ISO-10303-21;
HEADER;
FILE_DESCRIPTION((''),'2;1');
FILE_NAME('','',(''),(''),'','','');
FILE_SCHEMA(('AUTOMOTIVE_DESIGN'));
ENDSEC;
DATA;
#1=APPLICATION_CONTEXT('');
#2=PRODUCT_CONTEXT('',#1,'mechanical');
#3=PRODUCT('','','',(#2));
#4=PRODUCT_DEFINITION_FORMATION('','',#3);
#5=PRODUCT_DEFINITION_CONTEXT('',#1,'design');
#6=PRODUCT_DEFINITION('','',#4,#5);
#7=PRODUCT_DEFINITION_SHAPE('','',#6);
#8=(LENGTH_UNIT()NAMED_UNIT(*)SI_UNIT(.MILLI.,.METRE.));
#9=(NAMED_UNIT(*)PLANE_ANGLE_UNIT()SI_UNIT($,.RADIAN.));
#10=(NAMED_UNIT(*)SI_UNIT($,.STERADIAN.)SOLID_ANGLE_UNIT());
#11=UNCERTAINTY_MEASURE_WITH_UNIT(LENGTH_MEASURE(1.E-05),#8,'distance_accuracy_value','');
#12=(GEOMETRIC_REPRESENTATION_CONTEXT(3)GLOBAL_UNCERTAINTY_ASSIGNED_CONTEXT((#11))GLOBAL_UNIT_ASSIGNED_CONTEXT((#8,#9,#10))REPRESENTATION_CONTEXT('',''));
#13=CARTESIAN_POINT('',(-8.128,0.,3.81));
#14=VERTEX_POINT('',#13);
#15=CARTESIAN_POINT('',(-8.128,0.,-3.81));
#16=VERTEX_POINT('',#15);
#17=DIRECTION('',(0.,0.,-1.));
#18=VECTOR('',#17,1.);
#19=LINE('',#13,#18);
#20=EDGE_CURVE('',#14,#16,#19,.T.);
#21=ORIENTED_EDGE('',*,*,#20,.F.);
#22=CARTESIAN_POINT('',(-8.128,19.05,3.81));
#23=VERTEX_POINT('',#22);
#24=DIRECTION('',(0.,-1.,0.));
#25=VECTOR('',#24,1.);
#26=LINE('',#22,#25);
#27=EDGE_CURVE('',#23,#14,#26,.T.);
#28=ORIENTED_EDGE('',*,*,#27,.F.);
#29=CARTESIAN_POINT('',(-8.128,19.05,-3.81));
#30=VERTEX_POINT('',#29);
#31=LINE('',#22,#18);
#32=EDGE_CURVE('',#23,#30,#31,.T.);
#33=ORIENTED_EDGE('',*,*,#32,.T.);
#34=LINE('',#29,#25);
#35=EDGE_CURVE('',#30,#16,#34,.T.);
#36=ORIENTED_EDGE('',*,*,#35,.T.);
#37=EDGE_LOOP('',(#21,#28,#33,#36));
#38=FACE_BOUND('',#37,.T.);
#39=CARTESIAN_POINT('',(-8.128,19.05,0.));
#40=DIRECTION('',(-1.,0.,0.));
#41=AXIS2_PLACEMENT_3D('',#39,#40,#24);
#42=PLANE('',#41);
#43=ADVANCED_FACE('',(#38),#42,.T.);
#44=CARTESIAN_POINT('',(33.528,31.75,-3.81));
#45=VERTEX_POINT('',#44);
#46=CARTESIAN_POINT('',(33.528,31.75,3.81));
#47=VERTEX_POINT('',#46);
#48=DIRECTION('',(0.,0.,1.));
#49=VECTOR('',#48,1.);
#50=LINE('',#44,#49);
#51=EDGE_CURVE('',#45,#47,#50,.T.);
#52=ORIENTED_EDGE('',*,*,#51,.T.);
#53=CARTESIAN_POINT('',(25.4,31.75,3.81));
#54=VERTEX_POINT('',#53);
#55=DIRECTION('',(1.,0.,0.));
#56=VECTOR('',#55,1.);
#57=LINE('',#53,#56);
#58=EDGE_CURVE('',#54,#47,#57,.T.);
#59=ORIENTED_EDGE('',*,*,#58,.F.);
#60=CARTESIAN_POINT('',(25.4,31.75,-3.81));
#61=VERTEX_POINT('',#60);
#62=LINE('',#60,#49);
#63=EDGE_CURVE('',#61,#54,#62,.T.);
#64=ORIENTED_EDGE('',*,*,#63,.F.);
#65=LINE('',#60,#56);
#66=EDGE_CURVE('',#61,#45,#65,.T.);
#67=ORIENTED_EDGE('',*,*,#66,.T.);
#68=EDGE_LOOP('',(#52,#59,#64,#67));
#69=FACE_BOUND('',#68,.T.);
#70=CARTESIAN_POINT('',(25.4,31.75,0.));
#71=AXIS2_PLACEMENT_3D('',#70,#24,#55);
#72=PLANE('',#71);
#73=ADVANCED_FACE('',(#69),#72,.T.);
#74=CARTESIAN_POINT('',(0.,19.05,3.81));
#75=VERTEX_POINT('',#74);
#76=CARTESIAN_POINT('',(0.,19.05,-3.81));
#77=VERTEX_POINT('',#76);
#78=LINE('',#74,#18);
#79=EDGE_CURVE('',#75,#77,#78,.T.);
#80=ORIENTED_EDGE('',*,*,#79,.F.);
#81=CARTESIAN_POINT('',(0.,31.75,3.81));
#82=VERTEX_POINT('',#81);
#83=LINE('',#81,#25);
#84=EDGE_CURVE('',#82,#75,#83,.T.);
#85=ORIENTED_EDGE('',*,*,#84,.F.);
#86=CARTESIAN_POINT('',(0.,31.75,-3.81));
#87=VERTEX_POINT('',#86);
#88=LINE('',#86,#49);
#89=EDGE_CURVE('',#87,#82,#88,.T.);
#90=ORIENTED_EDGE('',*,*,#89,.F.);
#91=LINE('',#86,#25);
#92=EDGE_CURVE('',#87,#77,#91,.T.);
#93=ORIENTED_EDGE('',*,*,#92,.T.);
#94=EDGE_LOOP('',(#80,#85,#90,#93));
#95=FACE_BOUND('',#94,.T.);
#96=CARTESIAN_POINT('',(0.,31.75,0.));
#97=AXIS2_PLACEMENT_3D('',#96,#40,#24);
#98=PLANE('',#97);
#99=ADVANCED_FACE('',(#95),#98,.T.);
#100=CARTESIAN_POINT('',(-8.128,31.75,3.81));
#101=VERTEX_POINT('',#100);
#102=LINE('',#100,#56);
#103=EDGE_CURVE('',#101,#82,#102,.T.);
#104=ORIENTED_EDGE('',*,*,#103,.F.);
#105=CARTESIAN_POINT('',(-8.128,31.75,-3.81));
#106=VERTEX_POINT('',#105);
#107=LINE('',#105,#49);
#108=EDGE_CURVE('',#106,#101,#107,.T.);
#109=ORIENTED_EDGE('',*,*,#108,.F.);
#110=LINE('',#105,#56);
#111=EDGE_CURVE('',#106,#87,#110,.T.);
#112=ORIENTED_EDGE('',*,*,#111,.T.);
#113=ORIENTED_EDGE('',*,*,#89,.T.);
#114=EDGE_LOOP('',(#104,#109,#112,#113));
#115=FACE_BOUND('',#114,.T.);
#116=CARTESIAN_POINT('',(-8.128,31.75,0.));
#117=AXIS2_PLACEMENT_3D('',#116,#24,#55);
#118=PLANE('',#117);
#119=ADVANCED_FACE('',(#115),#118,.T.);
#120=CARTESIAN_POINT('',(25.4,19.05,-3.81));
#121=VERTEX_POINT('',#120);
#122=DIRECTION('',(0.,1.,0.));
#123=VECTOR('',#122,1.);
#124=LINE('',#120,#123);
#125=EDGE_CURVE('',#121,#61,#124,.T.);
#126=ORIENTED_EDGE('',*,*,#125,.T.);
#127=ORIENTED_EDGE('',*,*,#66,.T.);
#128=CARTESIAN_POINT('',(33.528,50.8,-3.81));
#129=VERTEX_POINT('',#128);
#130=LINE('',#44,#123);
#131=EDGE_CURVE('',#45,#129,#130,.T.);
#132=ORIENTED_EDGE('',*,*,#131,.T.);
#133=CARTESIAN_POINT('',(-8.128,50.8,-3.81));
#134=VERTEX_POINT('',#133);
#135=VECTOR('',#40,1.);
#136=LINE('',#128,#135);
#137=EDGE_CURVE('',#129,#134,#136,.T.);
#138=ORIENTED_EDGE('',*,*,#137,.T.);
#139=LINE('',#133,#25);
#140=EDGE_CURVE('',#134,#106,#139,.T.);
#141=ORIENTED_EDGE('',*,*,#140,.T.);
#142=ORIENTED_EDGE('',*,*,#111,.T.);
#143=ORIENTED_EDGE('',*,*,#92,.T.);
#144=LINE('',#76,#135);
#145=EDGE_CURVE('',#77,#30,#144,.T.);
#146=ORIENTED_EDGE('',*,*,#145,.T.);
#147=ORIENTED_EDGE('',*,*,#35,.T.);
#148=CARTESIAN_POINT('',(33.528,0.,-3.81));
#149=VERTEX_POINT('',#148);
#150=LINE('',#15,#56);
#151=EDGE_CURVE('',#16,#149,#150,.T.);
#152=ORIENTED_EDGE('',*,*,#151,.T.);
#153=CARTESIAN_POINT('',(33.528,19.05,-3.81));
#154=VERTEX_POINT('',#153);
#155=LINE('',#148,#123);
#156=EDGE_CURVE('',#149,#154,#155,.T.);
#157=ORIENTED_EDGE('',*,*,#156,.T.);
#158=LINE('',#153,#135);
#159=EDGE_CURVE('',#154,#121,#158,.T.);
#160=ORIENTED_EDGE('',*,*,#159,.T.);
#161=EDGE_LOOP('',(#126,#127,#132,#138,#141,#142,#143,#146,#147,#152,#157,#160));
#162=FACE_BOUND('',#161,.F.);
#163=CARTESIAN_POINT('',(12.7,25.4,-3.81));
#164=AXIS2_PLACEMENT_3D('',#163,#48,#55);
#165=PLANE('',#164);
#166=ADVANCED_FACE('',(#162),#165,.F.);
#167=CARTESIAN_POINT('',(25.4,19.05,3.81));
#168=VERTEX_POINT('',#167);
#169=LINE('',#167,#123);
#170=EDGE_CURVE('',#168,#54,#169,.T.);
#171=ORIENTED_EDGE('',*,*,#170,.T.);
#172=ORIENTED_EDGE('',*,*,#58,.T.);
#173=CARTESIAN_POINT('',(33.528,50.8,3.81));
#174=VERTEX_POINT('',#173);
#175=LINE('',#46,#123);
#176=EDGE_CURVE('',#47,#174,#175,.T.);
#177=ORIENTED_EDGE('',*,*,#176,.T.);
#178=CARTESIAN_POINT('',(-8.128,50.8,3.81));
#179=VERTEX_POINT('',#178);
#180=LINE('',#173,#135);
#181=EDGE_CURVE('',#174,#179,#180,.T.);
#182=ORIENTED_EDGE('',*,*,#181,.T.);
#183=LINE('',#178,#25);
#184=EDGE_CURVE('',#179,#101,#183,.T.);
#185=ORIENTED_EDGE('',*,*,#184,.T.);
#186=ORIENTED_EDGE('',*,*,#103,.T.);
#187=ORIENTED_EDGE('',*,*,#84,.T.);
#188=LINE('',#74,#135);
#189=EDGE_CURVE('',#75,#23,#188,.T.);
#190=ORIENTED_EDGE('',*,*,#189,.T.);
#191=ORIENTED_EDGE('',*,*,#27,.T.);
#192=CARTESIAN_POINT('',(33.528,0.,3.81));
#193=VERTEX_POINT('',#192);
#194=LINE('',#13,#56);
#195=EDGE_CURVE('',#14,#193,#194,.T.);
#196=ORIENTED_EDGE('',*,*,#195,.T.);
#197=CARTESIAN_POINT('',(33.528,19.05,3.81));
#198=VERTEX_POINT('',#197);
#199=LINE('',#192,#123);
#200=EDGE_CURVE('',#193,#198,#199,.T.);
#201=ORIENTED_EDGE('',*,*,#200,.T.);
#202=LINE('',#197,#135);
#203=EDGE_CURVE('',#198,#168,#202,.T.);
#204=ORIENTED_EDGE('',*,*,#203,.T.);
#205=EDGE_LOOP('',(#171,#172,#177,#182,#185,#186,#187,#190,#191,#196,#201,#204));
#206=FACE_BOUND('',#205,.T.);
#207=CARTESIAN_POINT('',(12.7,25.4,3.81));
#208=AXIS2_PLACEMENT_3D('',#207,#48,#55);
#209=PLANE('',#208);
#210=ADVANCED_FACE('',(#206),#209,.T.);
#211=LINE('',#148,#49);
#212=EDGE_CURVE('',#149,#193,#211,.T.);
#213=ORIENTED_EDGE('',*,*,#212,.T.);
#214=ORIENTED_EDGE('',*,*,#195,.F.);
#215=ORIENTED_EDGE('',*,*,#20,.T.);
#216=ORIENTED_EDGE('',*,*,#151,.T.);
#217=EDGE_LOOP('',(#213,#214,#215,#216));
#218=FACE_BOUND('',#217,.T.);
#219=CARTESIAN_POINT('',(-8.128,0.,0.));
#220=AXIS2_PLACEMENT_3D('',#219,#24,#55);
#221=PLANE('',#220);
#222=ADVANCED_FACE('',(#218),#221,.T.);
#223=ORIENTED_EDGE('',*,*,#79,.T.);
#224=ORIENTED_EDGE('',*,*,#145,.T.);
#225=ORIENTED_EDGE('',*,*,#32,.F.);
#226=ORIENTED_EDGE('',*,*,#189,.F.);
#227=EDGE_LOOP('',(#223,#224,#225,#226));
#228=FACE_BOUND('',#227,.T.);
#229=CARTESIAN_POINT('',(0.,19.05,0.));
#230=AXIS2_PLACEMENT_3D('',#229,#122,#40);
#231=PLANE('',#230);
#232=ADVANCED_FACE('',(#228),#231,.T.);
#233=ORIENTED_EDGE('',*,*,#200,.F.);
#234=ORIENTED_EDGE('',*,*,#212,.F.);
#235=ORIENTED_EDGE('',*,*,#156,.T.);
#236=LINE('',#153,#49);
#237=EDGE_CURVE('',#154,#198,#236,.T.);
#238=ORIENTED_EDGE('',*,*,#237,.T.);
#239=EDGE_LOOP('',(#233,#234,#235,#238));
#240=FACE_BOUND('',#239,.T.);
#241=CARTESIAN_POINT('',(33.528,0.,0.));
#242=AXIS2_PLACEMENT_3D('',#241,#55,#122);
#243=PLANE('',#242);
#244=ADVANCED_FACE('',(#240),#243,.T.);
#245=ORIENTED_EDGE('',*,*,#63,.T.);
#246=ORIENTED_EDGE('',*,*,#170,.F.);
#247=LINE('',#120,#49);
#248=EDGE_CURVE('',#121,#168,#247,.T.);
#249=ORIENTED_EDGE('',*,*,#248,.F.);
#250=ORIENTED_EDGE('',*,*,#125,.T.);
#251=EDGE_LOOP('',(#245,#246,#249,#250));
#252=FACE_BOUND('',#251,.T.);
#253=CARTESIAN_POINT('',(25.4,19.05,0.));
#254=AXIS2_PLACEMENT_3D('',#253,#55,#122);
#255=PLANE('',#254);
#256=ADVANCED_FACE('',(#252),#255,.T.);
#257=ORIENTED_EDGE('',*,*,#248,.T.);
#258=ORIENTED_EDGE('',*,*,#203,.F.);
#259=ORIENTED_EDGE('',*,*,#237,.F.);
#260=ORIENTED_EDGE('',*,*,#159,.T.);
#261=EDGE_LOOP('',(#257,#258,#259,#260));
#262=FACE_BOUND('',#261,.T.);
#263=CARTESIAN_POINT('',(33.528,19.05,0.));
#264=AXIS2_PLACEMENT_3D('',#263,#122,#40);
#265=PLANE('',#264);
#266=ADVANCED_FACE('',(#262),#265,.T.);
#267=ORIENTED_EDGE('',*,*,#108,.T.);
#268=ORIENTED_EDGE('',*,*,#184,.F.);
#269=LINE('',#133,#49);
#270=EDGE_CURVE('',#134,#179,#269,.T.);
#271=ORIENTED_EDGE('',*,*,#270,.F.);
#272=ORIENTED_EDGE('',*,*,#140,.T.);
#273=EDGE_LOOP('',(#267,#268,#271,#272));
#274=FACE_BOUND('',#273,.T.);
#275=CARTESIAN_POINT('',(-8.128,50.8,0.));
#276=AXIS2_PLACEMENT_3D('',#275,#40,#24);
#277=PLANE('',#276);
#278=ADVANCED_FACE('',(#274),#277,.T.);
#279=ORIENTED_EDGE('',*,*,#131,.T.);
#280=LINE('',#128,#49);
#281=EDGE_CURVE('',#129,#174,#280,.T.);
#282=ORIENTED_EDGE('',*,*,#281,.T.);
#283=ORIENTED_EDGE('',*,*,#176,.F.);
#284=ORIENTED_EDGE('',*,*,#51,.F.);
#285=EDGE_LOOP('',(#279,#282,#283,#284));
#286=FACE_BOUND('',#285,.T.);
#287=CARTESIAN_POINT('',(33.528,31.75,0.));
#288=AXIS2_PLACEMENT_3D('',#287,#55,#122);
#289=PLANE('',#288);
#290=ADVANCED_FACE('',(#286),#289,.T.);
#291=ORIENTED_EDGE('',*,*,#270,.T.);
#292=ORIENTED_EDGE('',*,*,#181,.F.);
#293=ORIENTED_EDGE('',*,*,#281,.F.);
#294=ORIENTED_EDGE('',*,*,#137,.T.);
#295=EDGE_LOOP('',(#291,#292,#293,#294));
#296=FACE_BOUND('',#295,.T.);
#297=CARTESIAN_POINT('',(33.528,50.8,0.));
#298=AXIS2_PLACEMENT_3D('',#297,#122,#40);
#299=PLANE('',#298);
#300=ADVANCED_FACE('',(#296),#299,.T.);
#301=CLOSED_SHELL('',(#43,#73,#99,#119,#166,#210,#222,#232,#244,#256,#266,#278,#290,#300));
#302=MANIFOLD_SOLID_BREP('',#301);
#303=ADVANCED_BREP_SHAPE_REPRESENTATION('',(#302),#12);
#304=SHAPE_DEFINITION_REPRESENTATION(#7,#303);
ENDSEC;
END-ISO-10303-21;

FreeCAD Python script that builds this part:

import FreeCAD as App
import Part
import Sketcher

V = App.Vector
Q = App.Units.Quantity

doc = App.newDocument("Part")
body = doc.addObject("PartDesign::Body", "Body")

# Sketch on XY plane
sketch1 = body.newObject("Sketcher::SketchObject", "Sketch")
sketch1.AttachmentSupport = (doc.getObject("XY_Plane"), [""])
sketch1.MapMode = "FlatFace"
sketch1.addGeometry(Part.LineSegment(V(-8.128, 0, 0), V(33.528, 0, 0)), False)
sketch1.addGeometry(Part.LineSegment(V(33.528, 0, 0), V(33.528, 19.05, 0)), False)
sketch1.addGeometry(Part.LineSegment(V(33.528, 19.05, 0), V(25.4, 19.05, 0)), False)
sketch1.addGeometry(Part.LineSegment(V(25.4, 19.05, 0), V(25.4, 31.75, 0)), False)
sketch1.addGeometry(Part.LineSegment(V(25.4, 31.75, 0), V(33.528, 31.75, 0)), False)
sketch1.addGeometry(Part.LineSegment(V(33.528, 31.75, 0), V(33.528, 50.8, 0)), False)
sketch1.addGeometry(Part.LineSegment(V(33.528, 50.8, 0), V(-8.128, 50.8, 0)), False)
sketch1.addGeometry(Part.LineSegment(V(-8.128, 50.8, 0), V(-8.128, 31.75, 0)), False)
sketch1.addGeometry(Part.LineSegment(V(-8.128, 31.75, 0), V(0, 31.75, 0)), False)
sketch1.addGeometry(Part.LineSegment(V(0, 31.75, 0), V(0, 19.05, 0)), False)
sketch1.addGeometry(Part.LineSegment(V(0, 19.05, 0), V(-8.128, 19.05, 0)), False)
sketch1.addGeometry(Part.LineSegment(V(-8.128, 19.05, 0), V(-8.128, 0, 0)), False)
sketch1.addConstraint(Sketcher.Constraint("Coincident", 0, 2, 1, 1))
sketch1.addConstraint(Sketcher.Constraint("Coincident", 1, 2, 2, 1))
sketch1.addConstraint(Sketcher.Constraint("Coincident", 2, 2, 3, 1))
sketch1.addConstraint(Sketcher.Constraint("Coincident", 3, 2, 4, 1))
sketch1.addConstraint(Sketcher.Constraint("Coincident", 4, 2, 5, 1))
sketch1.addConstraint(Sketcher.Constraint("Coincident", 5, 2, 6, 1))
sketch1.addConstraint(Sketcher.Constraint("Coincident", 6, 2, 7, 1))
sketch1.addConstraint(Sketcher.Constraint("Coincident", 7, 2, 8, 1))
sketch1.addConstraint(Sketcher.Constraint("Coincident", 8, 2, 9, 1))
sketch1.addConstraint(Sketcher.Constraint("Coincident", 9, 2, 10, 1))
sketch1.addConstraint(Sketcher.Constraint("Coincident", 10, 2, 11, 1))
sketch1.addConstraint(Sketcher.Constraint("Coincident", 11, 2, 0, 1))
sketch1.addConstraint(Sketcher.Constraint("Horizontal", 0))
sketch1.addConstraint(Sketcher.Constraint("Vertical", 1))
sketch1.addConstraint(Sketcher.Constraint("Horizontal", 2))
sketch1.addConstraint(Sketcher.Constraint("Vertical", 3))
sketch1.addConstraint(Sketcher.Constraint("Horizontal", 4))
sketch1.addConstraint(Sketcher.Constraint("Vertical", 5))
sketch1.addConstraint(Sketcher.Constraint("Horizontal", 6))
sketch1.addConstraint(Sketcher.Constraint("Vertical", 7))
sketch1.addConstraint(Sketcher.Constraint("Horizontal", 8))
sketch1.addConstraint(Sketcher.Constraint("Vertical", 9))
sketch1.addConstraint(Sketcher.Constraint("Horizontal", 10))
sketch1.addConstraint(Sketcher.Constraint("Vertical", 11))
sketch1.addConstraint(Sketcher.Constraint("PointOnObject", 0, 2, -1))
sketch1.addConstraint(Sketcher.Constraint("PointOnObject", 8, 2, -2))
sketch1.addConstraint(Sketcher.Constraint("Horizontal", 4, 2, 7, 2))
sketch1.addConstraint(Sketcher.Constraint("Horizontal", 2, 2, 9, 2))
sketch1.addConstraint(Sketcher.Constraint("Vertical", 1, 2, 4, 2))
sketch1.addConstraint(Sketcher.Constraint("Vertical", 7, 2, 10, 2))
sketch1.addConstraint(Sketcher.Constraint("Equal", 4, 8))
sketch1.addConstraint(Sketcher.Constraint("Equal", 1, 5))
sketch1.addConstraint(Sketcher.Constraint("DistanceY", 3, 1, 3, 2, Q("0.5 in")))
sketch1.addConstraint(Sketcher.Constraint("DistanceX", -1, 1, 2, 2, Q("1 in")))
sketch1.addConstraint(Sketcher.Constraint("DistanceY", -1, 1, 5, 2, Q("2 in")))
sketch1.addConstraint(Sketcher.Constraint("DistanceX", 0, 1, 0, 2, Q("1.64 in")))
pad1 = body.newObject("PartDesign::Pad", "Pad")
pad1.Profile = sketch1
pad1.Length = Q("0.3 in")
pad1.Midplane = True

doc.recompute()
